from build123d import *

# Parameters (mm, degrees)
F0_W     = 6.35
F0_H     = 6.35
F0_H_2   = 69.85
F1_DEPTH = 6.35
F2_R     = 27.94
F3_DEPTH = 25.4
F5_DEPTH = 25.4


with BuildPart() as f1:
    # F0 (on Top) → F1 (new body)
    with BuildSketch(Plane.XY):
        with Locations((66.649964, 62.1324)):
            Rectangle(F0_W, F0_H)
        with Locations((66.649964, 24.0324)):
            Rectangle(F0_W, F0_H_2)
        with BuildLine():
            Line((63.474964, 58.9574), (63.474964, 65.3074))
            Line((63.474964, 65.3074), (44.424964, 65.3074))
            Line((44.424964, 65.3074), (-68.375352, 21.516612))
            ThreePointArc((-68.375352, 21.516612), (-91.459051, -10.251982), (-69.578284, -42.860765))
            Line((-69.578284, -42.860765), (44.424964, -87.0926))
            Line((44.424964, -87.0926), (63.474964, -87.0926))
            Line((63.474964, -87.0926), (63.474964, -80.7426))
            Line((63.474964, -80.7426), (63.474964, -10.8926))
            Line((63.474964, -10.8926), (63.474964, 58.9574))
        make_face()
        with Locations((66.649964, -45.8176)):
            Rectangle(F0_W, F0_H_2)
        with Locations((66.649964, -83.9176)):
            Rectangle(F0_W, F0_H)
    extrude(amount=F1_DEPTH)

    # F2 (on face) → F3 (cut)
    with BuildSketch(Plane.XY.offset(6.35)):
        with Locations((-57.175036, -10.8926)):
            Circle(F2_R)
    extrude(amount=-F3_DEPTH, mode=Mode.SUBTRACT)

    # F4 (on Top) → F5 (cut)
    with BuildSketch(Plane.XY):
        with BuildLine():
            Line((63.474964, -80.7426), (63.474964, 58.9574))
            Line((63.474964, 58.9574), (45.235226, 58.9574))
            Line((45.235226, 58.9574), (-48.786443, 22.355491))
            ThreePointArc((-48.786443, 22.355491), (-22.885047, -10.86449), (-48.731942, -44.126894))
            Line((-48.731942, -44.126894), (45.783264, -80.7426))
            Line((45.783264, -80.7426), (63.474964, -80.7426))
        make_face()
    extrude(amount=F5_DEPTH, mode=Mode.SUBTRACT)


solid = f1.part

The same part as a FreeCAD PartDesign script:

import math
import FreeCAD as App
import Part
import Sketcher

V = App.Vector
Q = App.Units.Quantity

doc = App.newDocument("Part")
params = doc.addObject("Spreadsheet::Sheet", "Params")
for row, (alias, value) in enumerate([
    ("sketch1_width", "1 in"),
    ("sketch1_height", "6 in"),
    ("sketch1_radius", "1.35 in"),
    ("pad1_length", "0.25 in"),
    ("sketch2_diameter", "2.2 in"),
    ("pocket1_length", "1 in"),
    ("sketch3_radius", "1.35 in"),
    ("sketch3_height", "5.5 in"),
    ("pocket2_length", "1 in"),
], start=1):
    params.set(f"A{row}", alias)
    params.set(f"B{row}", "=" + value)
    params.setAlias(f"B{row}", alias)

body = doc.addObject("PartDesign::Body", "Body")

sketch1 = body.newObject("Sketcher::SketchObject", "Sketch")
sketch1.AttachmentSupport = (doc.getObject("XY_Plane"), [""])
sketch1.MapMode = "FlatFace"
sketch1.addGeometry([
    Part.LineSegment(V(69.824964, 65.3074, 0), V(44.424964, 65.3074, 0)),
    Part.LineSegment(V(44.424964, 65.3074, 0), V(-68.375352, 21.516612, 0)),
    Part.ArcOfCircle(Part.Circle(V(-57.175035, -10.8926, 0), V(0, 0, 1), 34.290001), math.radians(109.064665), math.radians(248.794368)),
    Part.LineSegment(V(-69.578284, -42.860765, 0), V(44.424964, -87.0926, 0)),
    Part.LineSegment(V(44.424964, -87.0926, 0), V(69.824964, -87.0926, 0)),
    Part.LineSegment(V(69.824964, -87.0926, 0), V(69.824964, 65.3074, 0)),
], False)
sketch1.addConstraint([
    Sketcher.Constraint("Coincident", 0, 2, 1, 1),
    Sketcher.Constraint("Coincident", 1, 2, 2, 1),
    Sketcher.Constraint("Tangent", 2, 2, 3, 1),
    Sketcher.Constraint("Coincident", 3, 2, 4, 1),
    Sketcher.Constraint("Coincident", 4, 2, 5, 1),
    Sketcher.Constraint("Coincident", 5, 2, 0, 1),
    Sketcher.Constraint("Horizontal", 0),
    Sketcher.Constraint("Horizontal", 4),
    Sketcher.Constraint("Vertical", 5),
    Sketcher.Constraint("Vertical", 0, 2, 3, 2),
    Sketcher.Constraint("DistanceX", 0, 2, 0, 1, Q("1 in")),
    Sketcher.Constraint("DistanceY", 5, 1, 5, 2, Q("6 in")),
    Sketcher.Constraint("Radius", 2, Q("1.35 in")),
    Sketcher.Constraint("DistanceX", 2, 3, 0, 2, Q("4 in")),
    Sketcher.Constraint("DistanceY", 2, 3, 0, 2, Q("3 in")),
    Sketcher.Constraint("DistanceY", 2, 3, -1, 1, 10.8926),
    Sketcher.Constraint("Distance", 1, 121.00225),
    Sketcher.Constraint("DistanceX", 2, 3, -1, 1, 57.175035),
])
sketch1.setExpression("Constraints[10]", "Params.sketch1_width")
sketch1.setExpression("Constraints[11]", "Params.sketch1_height")
sketch1.setExpression("Constraints[12]", "Params.sketch1_radius")
pad1 = body.newObject("PartDesign::Pad", "Pad")
pad1.Profile = sketch1
pad1.setExpression("Length", "Params.pad1_length")

sketch2 = body.newObject("Sketcher::SketchObject", "Sketch001")
sketch2.AttachmentSupport = (doc.getObject("XY_Plane"), [""])
sketch2.MapMode = "FlatFace"
sketch2.AttachmentOffset = App.Placement(V(0, 0, 0.25 * 25.4), App.Rotation())
sketch2.addGeometry(Part.Circle(V(-57.175036, -10.8926, 0), V(0, 0, 1), 27.94), False)
sketch2.addConstraint([
    Sketcher.Constraint("Diameter", 0, Q("2.2 in")),
    Sketcher.Constraint("DistanceY", 0, 3, -1, 1, 10.8926),
    Sketcher.Constraint("DistanceX", 0, 3, -1, 1, 57.175036),
])
sketch2.setExpression("Constraints[0]", "Params.sketch2_diameter")
pocket1 = body.newObject("PartDesign::Pocket", "Pocket")
pocket1.Profile = sketch2
pocket1.setExpression("Length", "Params.pocket1_length")

sketch3 = body.newObject("Sketcher::SketchObject", "Sketch002")
sketch3.AttachmentSupport = (doc.getObject("XY_Plane"), [""])
sketch3.MapMode = "FlatFace"
sketch3.addGeometry([
    Part.LineSegment(V(63.474964, -80.7426, 0), V(63.474964, 58.9574, 0)),
    Part.LineSegment(V(63.474964, 58.9574, 0), V(45.235226, 58.9574, 0)),
    Part.LineSegment(V(45.235226, 58.9574, 0), V(-48.786443, 22.355491, 0)),
    Part.ArcOfCircle(Part.Circle(V(-57.175035, -10.892601, 0), V(0, 0, 1), 34.29), math.radians(-75.745696), math.radians(75.839636)),
    Part.LineSegment(V(-48.731942, -44.126894, 0), V(45.783264, -80.7426, 0)),
    Part.LineSegment(V(45.783264, -80.7426, 0), V(63.474964, -80.7426, 0)),
], False)
sketch3.addConstraint([
    Sketcher.Constraint("Coincident", 0, 2, 1, 1),
    Sketcher.Constraint("Coincident", 1, 2, 2, 1),
    Sketcher.Constraint("Coincident", 2, 2, 3, 2),
    Sketcher.Constraint("Coincident", 3, 1, 4, 1),
    Sketcher.Constraint("Coincident", 4, 2, 5, 1),
    Sketcher.Constraint("Coincident", 5, 2, 0, 1),
    Sketcher.Constraint("Vertical", 0),
    Sketcher.Constraint("Horizontal", 1),
    Sketcher.Constraint("Horizontal", 5),
    Sketcher.Constraint("Radius", 3, Q("1.35 in")),
    Sketcher.Constraint("DistanceY", 0, 1, 0, 2, Q("5.5 in")),
    Sketcher.Constraint("DistanceX", 3, 3, 0, 2, Q("4.75 in")),
    Sketcher.Constraint("DistanceY", 3, 3, 0, 2, Q("2.75 in")),
    Sketcher.Constraint("DistanceX", 1, 2, 1, 1, Q("0.7180999 in")),
    Sketcher.Constraint("DistanceX", 5, 1, 5, 2, 17.6917),
    Sketcher.Constraint("DistanceY", 3, 3, -1, 1, 10.892601),
    Sketcher.Constraint("DistanceX", 2, 2, 3, 1, 0.054501),
    Sketcher.Constraint("DistanceY", -1, 1, 2, 2, 22.355491),
    Sketcher.Constraint("DistanceX", 3, 3, -1, 1, 57.175035),
])
sketch3.setExpression("Constraints[9]", "Params.sketch3_radius")
sketch3.setExpression("Constraints[10]", "Params.sketch3_height")
pocket2 = body.newObject("PartDesign::Pocket", "Pocket001")
pocket2.Profile = sketch3
pocket2.setExpression("Length", "Params.pocket2_length")
pocket2.Reversed = True

doc.recompute()
